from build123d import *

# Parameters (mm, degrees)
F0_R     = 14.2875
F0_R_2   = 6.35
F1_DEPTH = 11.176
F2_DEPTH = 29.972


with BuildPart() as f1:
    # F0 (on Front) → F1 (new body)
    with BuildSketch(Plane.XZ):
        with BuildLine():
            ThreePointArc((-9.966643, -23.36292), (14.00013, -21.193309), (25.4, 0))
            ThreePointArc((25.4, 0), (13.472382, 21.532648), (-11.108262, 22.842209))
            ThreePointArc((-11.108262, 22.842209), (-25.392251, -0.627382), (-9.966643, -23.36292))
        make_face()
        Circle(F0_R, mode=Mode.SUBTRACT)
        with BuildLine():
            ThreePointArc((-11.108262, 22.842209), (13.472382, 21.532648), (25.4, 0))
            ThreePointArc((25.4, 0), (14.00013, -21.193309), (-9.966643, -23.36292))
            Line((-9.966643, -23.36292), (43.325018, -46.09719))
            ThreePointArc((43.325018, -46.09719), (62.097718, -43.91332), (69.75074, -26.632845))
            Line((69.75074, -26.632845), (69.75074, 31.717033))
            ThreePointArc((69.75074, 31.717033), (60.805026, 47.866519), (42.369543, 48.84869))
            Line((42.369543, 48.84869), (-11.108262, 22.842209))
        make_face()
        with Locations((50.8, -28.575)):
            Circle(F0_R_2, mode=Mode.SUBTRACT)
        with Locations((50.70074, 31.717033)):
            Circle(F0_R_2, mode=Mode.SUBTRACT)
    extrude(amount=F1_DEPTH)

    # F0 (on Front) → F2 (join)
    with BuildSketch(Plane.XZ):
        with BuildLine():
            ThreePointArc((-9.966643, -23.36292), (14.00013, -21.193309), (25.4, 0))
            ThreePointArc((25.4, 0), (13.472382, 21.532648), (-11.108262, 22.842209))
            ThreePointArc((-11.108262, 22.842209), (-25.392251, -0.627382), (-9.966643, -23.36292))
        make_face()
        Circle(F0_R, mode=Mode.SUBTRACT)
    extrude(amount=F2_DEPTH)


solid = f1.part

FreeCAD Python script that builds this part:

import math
import FreeCAD as App
import Part
import Sketcher
from FreeCAD import Vector
Q = App.Units.Quantity

doc = App.newDocument("Part")
body = doc.addObject("PartDesign::Body", "Body")

sketch1 = body.newObject("Sketcher::SketchObject", "Sketch")
sketch1.AttachmentSupport = (doc.getObject("XZ_Plane"), [""])
sketch1.MapMode = "FlatFace"
sketch1.addGeometry(Part.ArcOfCircle(Part.Circle(Vector(0, 0, 0), Vector(0, 0, 1), 25), math.radians(116), math.radians(247)), False)
sketch1.addGeometry(Part.LineSegment(Vector(-10, -23, 0), Vector(43, -46, 0)), False)
sketch1.addGeometry(Part.ArcOfCircle(Part.Circle(Vector(51, -29, 0), Vector(0, 0, 1), 19), math.radians(-113), math.radians(6)), False)
sketch1.addGeometry(Part.LineSegment(Vector(70, -27, 0), Vector(70, 32, 0)), False)
sketch1.addGeometry(Part.ArcOfCircle(Part.Circle(Vector(51, 32, 0), Vector(0, 0, 1), 19), math.radians(0), math.radians(116)), False)
sketch1.addGeometry(Part.LineSegment(Vector(42, 49, 0), Vector(-11, 23, 0)), False)
sketch1.addGeometry(Part.Circle(Vector(0, 0, 0), Vector(0, 0, 1), 14), False)
sketch1.addGeometry(Part.Circle(Vector(51, -29, 0), Vector(0, 0, 1), 6), False)
sketch1.addGeometry(Part.Circle(Vector(51, 32, 0), Vector(0, 0, 1), 6), False)
sketch1.addConstraint(Sketcher.Constraint("Tangent", 0, 2, 1, 1))
sketch1.addConstraint(Sketcher.Constraint("Tangent", 1, 2, 2, 1))
sketch1.addConstraint(Sketcher.Constraint("Coincident", 2, 2, 3, 1))
sketch1.addConstraint(Sketcher.Constraint("Tangent", 3, 2, 4, 1))
sketch1.addConstraint(Sketcher.Constraint("Tangent", 4, 2, 5, 1))
sketch1.addConstraint(Sketcher.Constraint("Tangent", 5, 2, 0, 1))
sketch1.addConstraint(Sketcher.Constraint("Vertical", 3))
sketch1.addConstraint(Sketcher.Constraint("Coincident", 0, 3, -1, 1))
sketch1.addConstraint(Sketcher.Constraint("Coincident", 6, 3, -1, 1))
sketch1.addConstraint(Sketcher.Constraint("Coincident", 7, 3, 2, 3))
sketch1.addConstraint(Sketcher.Constraint("Coincident", 8, 3, 4, 3))
sketch1.addConstraint(Sketcher.Constraint("Equal", 2, 4))
sketch1.addConstraint(Sketcher.Constraint("Equal", 7, 8))
sketch1.addConstraint(Sketcher.Constraint("Radius", 0, Q("1 in")))
sketch1.addConstraint(Sketcher.Constraint("Diameter", 7, Q("0.5 in")))
sketch1.addConstraint(Sketcher.Constraint("Radius", 2, Q("0.75 in")))
sketch1.addConstraint(Sketcher.Constraint("Diameter", 6, Q("1.125 in")))
sketch1.addConstraint(Sketcher.Constraint("DistanceX", -1, 1, 2, 3, Q("2 in")))
sketch1.addConstraint(Sketcher.Constraint("DistanceY", 2, 3, -1, 1, Q("1.125 in")))
sketch1.addConstraint(Sketcher.Constraint("DistanceX", 4, 2, 8, 3, Q("0.3279999 in")))
sketch1.addConstraint(Sketcher.Constraint("DistanceY", 3, 1, 3, 2, 58.349878))
pad1 = body.newObject("PartDesign::Pad", "Pad")
pad1.Profile = sketch1
pad1.Length = Q("0.44 in")

sketch2 = body.newObject("Sketcher::SketchObject", "Sketch001")
sketch2.AttachmentSupport = (doc.getObject("XZ_Plane"), [""])
sketch2.MapMode = "FlatFace"
sketch2.addGeometry(Part.ArcOfCircle(Part.Circle(Vector(0, 0, 0), Vector(0, 0, 1), 25), math.radians(-113), math.radians(0)), False)
sketch2.addGeometry(Part.ArcOfCircle(Part.Circle(Vector(0, 0, 0), Vector(0, 0, 1), 25), math.radians(0), math.radians(116)), False)
sketch2.addGeometry(Part.ArcOfCircle(Part.Circle(Vector(0, 0, 0), Vector(0, 0, 1), 25), math.radians(116), math.radians(247)), False)
sketch2.addGeometry(Part.Circle(Vector(0, 0, 0), Vector(0, 0, 1), 14), False)
sketch2.addConstraint(Sketcher.Constraint("Tangent", 0, 2, 1, 1))
sketch2.addConstraint(Sketcher.Constraint("Tangent", 1, 2, 2, 1))
sketch2.addConstraint(Sketcher.Constraint("Tangent", 2, 2, 0, 1))
sketch2.addConstraint(Sketcher.Constraint("Coincident", 0, 3, -1, 1))
sketch2.addConstraint(Sketcher.Constraint("Coincident", 3, 3, -1, 1))
sketch2.addConstraint(Sketcher.Constraint("PointOnObject", 0, 2, -1))
sketch2.addConstraint(Sketcher.Constraint("Radius", 0, Q("1 in")))
sketch2.addConstraint(Sketcher.Constraint("Diameter", 3, Q("1.125 in")))
sketch2.addConstraint(Sketcher.Constraint("DistanceY", 2, 2, -1, 1, Q("0.9198 in")))
sketch2.addConstraint(Sketcher.Constraint("DistanceX", 1, 2, -1, 1, 11.108262))
pad2 = body.newObject("PartDesign::Pad", "Pad001")
pad2.Profile = sketch2
pad2.Length = Q("1.18 in")

doc.recompute()
